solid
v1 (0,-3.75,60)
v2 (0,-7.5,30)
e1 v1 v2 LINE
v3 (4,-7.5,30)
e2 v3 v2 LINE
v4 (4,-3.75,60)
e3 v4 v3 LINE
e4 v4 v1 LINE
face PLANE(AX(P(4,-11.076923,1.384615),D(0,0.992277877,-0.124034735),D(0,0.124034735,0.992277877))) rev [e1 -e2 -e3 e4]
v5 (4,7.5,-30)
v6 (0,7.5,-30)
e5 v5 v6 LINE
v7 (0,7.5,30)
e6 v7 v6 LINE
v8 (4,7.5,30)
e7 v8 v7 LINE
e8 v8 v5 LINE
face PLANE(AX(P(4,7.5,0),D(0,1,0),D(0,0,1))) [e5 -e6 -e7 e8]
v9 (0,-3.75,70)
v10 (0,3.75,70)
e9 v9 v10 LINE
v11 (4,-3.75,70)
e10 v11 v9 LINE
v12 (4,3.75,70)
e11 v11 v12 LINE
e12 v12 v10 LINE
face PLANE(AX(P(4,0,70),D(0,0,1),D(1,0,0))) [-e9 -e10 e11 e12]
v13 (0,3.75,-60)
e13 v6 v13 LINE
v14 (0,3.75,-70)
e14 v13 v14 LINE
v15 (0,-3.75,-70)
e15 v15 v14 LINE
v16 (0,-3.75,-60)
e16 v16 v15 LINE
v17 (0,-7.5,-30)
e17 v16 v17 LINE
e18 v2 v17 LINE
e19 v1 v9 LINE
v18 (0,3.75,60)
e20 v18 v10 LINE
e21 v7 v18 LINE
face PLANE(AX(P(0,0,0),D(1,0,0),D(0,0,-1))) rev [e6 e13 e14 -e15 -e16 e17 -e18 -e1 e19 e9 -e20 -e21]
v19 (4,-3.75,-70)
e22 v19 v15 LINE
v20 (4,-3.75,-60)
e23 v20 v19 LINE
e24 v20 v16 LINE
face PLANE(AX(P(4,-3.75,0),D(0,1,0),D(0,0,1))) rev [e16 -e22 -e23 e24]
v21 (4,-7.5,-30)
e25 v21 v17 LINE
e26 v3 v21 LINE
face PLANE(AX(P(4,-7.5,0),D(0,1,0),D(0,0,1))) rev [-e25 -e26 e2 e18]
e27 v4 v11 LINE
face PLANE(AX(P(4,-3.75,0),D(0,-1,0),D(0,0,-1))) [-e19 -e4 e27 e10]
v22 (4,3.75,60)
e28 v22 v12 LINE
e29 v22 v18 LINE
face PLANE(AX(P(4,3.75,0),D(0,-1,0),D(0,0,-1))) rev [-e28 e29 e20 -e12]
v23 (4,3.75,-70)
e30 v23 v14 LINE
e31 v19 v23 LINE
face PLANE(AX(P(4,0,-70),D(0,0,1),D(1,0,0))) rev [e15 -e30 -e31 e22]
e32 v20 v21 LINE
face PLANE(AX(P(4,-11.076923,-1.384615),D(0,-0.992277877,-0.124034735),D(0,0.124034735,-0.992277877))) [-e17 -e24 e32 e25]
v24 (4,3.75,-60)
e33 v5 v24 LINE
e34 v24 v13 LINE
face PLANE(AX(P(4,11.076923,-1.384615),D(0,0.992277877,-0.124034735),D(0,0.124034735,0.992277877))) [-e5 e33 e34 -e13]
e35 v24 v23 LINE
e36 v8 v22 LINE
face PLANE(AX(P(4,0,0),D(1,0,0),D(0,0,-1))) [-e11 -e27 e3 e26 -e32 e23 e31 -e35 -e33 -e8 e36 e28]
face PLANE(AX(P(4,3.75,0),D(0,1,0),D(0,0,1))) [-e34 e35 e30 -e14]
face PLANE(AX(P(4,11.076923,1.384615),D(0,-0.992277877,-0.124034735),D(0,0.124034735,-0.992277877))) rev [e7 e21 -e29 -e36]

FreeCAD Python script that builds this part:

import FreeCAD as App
import Part
import Sketcher
from FreeCAD import Vector


def add_polygon(sketch, points):
    """Adds a closed chain of lines whose ends are joined by coincident constraints."""
    first, n = sketch.GeometryCount, len(points)
    for a, b in zip(points, points[1:] + points[:1]):
        sketch.addGeometry(Part.LineSegment(App.Vector(*a, 0), App.Vector(*b, 0)), False)
    for i in range(n):
        sketch.addConstraint(Sketcher.Constraint("Coincident", first + i, 2, first + (i + 1) % n, 1))

doc = App.newDocument("Part")
body = doc.addObject("PartDesign::Body", "Body")

sketch1 = body.newObject("Sketcher::SketchObject", "Sketch")
sketch1.AttachmentSupport = (doc.getObject("YZ_Plane"), [""])
sketch1.MapMode = "FlatFace"
add_polygon(sketch1, [(-8, 30), (-8, -30), (-4, -60), (-4, -70), (4, -70), (4, -60), (8, -30), (8, 30), (4, 60), (4, 70), (-4, 70), (-4, 60)])
sketch1.addConstraint(Sketcher.Constraint("Vertical", 0))
sketch1.addConstraint(Sketcher.Constraint("Vertical", 2))
sketch1.addConstraint(Sketcher.Constraint("Horizontal", 3))
sketch1.addConstraint(Sketcher.Constraint("Vertical", 4))
sketch1.addConstraint(Sketcher.Constraint("Vertical", 6))
sketch1.addConstraint(Sketcher.Constraint("Vertical", 8))
sketch1.addConstraint(Sketcher.Constraint("Horizontal", 9))
sketch1.addConstraint(Sketcher.Constraint("Vertical", 10))
sketch1.addConstraint(Sketcher.Constraint("Symmetric", 0, 2, 6, 2, -1, 1))
sketch1.addConstraint(Sketcher.Constraint("Symmetric", 1, 2, 7, 2, -1, 1))
sketch1.addConstraint(Sketcher.Constraint("Symmetric", 3, 2, 9, 2, -1, 1))
sketch1.addConstraint(Sketcher.Constraint("Symmetric", 1, 2, 4, 2, -2))
sketch1.addConstraint(Sketcher.Constraint("Parallel", 5, 11))
sketch1.addConstraint(Sketcher.Constraint("Horizontal", 0, 2, 5, 2))
sketch1.addConstraint(Sketcher.Constraint("Horizontal", 7, 2, 10, 2))
sketch1.addConstraint(Sketcher.Constraint("DistanceY", 0, 2, 0, 1, 60.0))
sketch1.addConstraint(Sketcher.Constraint("DistanceY", 2, 2, 2, 1, 10.0))
sketch1.addConstraint(Sketcher.Constraint("DistanceX", 3, 1, 3, 2, 7.5))
sketch1.addConstraint(Sketcher.Constraint("DistanceY", 1, 2, -1, 1, 60.0))
sketch1.addConstraint(Sketcher.Constraint("DistanceX", 0, 2, 5, 2, 15.0))
pad1 = body.newObject("PartDesign::Pad", "Pad")
pad1.Profile = sketch1
pad1.Length = 4

doc.recompute()
